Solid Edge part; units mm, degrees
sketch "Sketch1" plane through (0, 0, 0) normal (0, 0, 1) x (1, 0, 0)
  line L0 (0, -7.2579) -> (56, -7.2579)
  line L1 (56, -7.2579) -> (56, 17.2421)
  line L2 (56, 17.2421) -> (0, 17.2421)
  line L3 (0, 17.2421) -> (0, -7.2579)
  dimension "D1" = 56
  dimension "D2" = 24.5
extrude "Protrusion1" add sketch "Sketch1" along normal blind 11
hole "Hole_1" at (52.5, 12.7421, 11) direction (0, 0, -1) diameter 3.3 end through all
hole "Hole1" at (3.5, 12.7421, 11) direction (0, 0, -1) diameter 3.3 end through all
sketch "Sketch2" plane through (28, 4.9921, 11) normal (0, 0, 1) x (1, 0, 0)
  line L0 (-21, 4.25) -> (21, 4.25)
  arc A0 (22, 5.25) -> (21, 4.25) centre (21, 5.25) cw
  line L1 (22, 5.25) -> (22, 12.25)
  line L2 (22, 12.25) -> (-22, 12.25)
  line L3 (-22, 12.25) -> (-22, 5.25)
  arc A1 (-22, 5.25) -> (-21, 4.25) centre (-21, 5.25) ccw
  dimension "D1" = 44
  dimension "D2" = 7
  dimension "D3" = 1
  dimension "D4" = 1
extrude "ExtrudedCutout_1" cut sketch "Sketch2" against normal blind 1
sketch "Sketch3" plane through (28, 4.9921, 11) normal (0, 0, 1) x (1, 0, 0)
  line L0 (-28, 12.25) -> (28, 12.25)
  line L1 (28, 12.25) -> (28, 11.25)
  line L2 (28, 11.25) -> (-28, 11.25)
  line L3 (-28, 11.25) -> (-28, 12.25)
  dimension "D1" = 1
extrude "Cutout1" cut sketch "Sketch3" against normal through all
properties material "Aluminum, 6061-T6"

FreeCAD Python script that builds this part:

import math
import FreeCAD as App
import Part
import Sketcher
from FreeCAD import Vector
Q = App.Units.Quantity


def add_polygon(sketch, points):
    """Adds a closed chain of lines whose ends are joined by coincident constraints."""
    first, n = sketch.GeometryCount, len(points)
    for a, b in zip(points, points[1:] + points[:1]):
        sketch.addGeometry(Part.LineSegment(App.Vector(*a, 0), App.Vector(*b, 0)), False)
    for i in range(n):
        sketch.addConstraint(Sketcher.Constraint("Coincident", first + i, 2, first + (i + 1) % n, 1))

doc = App.newDocument("Part")
body = doc.addObject("PartDesign::Body", "Body")

sketch1 = doc.addObject("Sketcher::SketchObject", "Sketch")
body.addObject(sketch1)
sketch1.AttachmentSupport = (doc.XY_Plane, [""])
sketch1.MapMode = "FlatFace"
add_polygon(sketch1, [(0, 17), (0, -7), (56, -7), (56, 17)])
sketch1.addConstraint([
    Sketcher.Constraint("Vertical", 0),
    Sketcher.Constraint("Horizontal", 1),
    Sketcher.Constraint("Vertical", 2),
    Sketcher.Constraint("Horizontal", 3),
    Sketcher.Constraint("PointOnObject", 0, 2, -2),
    Sketcher.Constraint("DistanceX", 1, 1, 1, 2, Q("56 mm")),
    Sketcher.Constraint("DistanceY", 0, 2, 0, 1, Q("24.5 mm")),
    Sketcher.Constraint("DistanceY", 0, 2, -1, 1, Q("7.258 mm")),
])
pad1 = doc.addObject("PartDesign::Pad", "Pad")
body.addObject(pad1)
pad1.Profile = sketch1
pad1.Length = 11

sketch2 = doc.addObject("Sketcher::SketchObject", "Sketch001")
body.addObject(sketch2)
sketch2.AttachmentSupport = (doc.XY_Plane, [""])
sketch2.MapMode = "FlatFace"
sketch2.AttachmentOffset = App.Placement(Vector(0, 0, 11), App.Rotation())
sketch2.addGeometry(Part.Circle(Vector(52.5, 12.7, 0), Vector(0, 0, 1), 1.6), False)
sketch2.addConstraint([
    Sketcher.Constraint("Diameter", 0, Q("3.3 mm")),
    Sketcher.Constraint("DistanceX", -1, 1, 0, 3, Q("52.5 mm")),
    Sketcher.Constraint("DistanceY", -1, 1, 0, 3, Q("12.742 mm")),
])
doc.recompute()
hole = doc.addObject("PartDesign::Hole", "Hole")
body.addObject(hole)
hole.Profile = sketch2
hole.ThreadType = "None"
hole.Diameter = 3.3
hole.DepthType = "ThroughAll"

sketch3 = doc.addObject("Sketcher::SketchObject", "Sketch002")
body.addObject(sketch3)
sketch3.AttachmentSupport = (doc.XY_Plane, [""])
sketch3.MapMode = "FlatFace"
sketch3.AttachmentOffset = App.Placement(Vector(0, 0, 11), App.Rotation())
sketch3.addGeometry(Part.Circle(Vector(3.5, 12.7, 0), Vector(0, 0, 1), 1.6), False)
sketch3.addConstraint([
    Sketcher.Constraint("Diameter", 0, Q("3.3 mm")),
    Sketcher.Constraint("DistanceX", -1, 1, 0, 3, Q("3.5 mm")),
    Sketcher.Constraint("DistanceY", -1, 1, 0, 3, Q("12.742 mm")),
])
doc.recompute()
hole2 = doc.addObject("PartDesign::Hole", "Hole001")
body.addObject(hole2)
hole2.Profile = sketch3
hole2.ThreadType = "None"
hole2.Diameter = 3.3
hole2.DepthType = "ThroughAll"

sketch4 = doc.addObject("Sketcher::SketchObject", "Sketch003")
body.addObject(sketch4)
sketch4.AttachmentSupport = (doc.XY_Plane, [""])
sketch4.MapMode = "FlatFace"
sketch4.AttachmentOffset = App.Placement(Vector(0, 0, 11), App.Rotation())
sketch4.addGeometry([
    Part.ArcOfCircle(Part.Circle(Vector(7, 10.2, 0), Vector(0, 0, 1), 1), math.radians(180), math.radians(270)),
    Part.LineSegment(Vector(7, 9.2, 0), Vector(49, 9.2, 0)),
    Part.ArcOfCircle(Part.Circle(Vector(49, 10.2, 0), Vector(0, 0, 1), 1), math.radians(-90), math.radians(0)),
    Part.LineSegment(Vector(50, 10.2, 0), Vector(50, 17.2, 0)),
    Part.LineSegment(Vector(50, 17.2, 0), Vector(6, 17.2, 0)),
    Part.LineSegment(Vector(6, 17.2, 0), Vector(6, 10.2, 0)),
], False)
sketch4.addConstraint([
    Sketcher.Constraint("Tangent", 0, 2, 1, 1),
    Sketcher.Constraint("Tangent", 1, 2, 2, 1),
    Sketcher.Constraint("Tangent", 2, 2, 3, 1),
    Sketcher.Constraint("Coincident", 3, 2, 4, 1),
    Sketcher.Constraint("Coincident", 4, 2, 5, 1),
    Sketcher.Constraint("Tangent", 5, 2, 0, 1),
    Sketcher.Constraint("Horizontal", 1),
    Sketcher.Constraint("Vertical", 3),
    Sketcher.Constraint("Horizontal", 4),
    Sketcher.Constraint("Vertical", 5),
    Sketcher.Constraint("Equal", 0, 2),
    Sketcher.Constraint("Radius", 0, Q("1 mm")),
    Sketcher.Constraint("DistanceX", 1, 1, 1, 2, Q("42 mm")),
    Sketcher.Constraint("DistanceY", 3, 1, 3, 2, Q("7 mm")),
    Sketcher.Constraint("DistanceX", -1, 1, 0, 3, Q("7 mm")),
    Sketcher.Constraint("DistanceY", -1, 1, 0, 3, Q("10.242 mm")),
])
pocket1 = doc.addObject("PartDesign::Pocket", "Pocket")
body.addObject(pocket1)
pocket1.Profile = sketch4
pocket1.Length = 1

sketch5 = doc.addObject("Sketcher::SketchObject", "Sketch004")
body.addObject(sketch5)
sketch5.AttachmentSupport = (doc.XY_Plane, [""])
sketch5.MapMode = "FlatFace"
sketch5.AttachmentOffset = App.Placement(Vector(0, 0, 11), App.Rotation())
add_polygon(sketch5, [(56, 17.2), (0, 17.2), (0, 16.2), (56, 16.2)])
sketch5.addConstraint([
    Sketcher.Constraint("Horizontal", 0),
    Sketcher.Constraint("Vertical", 1),
    Sketcher.Constraint("Horizontal", 2),
    Sketcher.Constraint("Vertical", 3),
    Sketcher.Constraint("PointOnObject", 0, 2, -2),
    Sketcher.Constraint("DistanceX", 0, 2, 0, 1, Q("56 mm")),
    Sketcher.Constraint("DistanceY", 1, 2, 1, 1, Q("1 mm")),
    Sketcher.Constraint("DistanceY", -1, 1, 0, 2, Q("17.242 mm")),
])
pocket2 = doc.addObject("PartDesign::Pocket", "Pocket001")
body.addObject(pocket2)
pocket2.Profile = sketch5
pocket2.Type = "ThroughAll"

doc.recompute()
